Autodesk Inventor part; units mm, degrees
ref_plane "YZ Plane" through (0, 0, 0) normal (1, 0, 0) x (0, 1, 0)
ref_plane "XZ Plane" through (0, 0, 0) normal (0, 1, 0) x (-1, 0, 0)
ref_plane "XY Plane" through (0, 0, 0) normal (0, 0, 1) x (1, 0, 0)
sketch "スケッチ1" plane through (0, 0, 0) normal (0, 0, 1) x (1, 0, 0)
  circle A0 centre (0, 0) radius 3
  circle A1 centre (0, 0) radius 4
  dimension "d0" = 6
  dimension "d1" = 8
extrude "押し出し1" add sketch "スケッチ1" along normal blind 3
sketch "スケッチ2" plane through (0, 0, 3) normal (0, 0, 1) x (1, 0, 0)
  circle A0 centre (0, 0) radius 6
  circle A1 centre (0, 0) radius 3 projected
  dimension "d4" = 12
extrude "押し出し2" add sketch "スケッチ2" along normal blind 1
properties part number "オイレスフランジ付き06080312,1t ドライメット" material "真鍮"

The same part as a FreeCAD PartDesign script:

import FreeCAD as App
import Part
import Sketcher

V = App.Vector
Q = App.Units.Quantity

doc = App.newDocument("Part")
params = doc.addObject("Spreadsheet::Sheet", "Params")
for row, (alias, value) in enumerate([
    ("sketch1_diameter", "8 mm"),
    ("sketch1_diameter2", "6 mm"),
    ("pad1_length", "3 mm"),
    ("sketch2_diameter", "12 mm"),
    ("sketch2_diameter2", "6 mm"),
    ("pad2_length", "1 mm"),
], start=1):
    params.set(f"A{row}", alias)
    params.set(f"B{row}", "=" + value)
    params.setAlias(f"B{row}", alias)

body = doc.addObject("PartDesign::Body", "Body")

# Sketch on XY plane
sketch1 = body.newObject("Sketcher::SketchObject", "Sketch")
sketch1.AttachmentSupport = (doc.getObject("XY_Plane"), [""])
sketch1.MapMode = "FlatFace"
sketch1.addGeometry(Part.Circle(V(0, 0, 0), V(0, 0, 1), 4), False)
sketch1.addGeometry(Part.Circle(V(0, 0, 0), V(0, 0, 1), 3), False)
sketch1.addConstraint(Sketcher.Constraint("Coincident", 0, 3, -1, 1))
sketch1.addConstraint(Sketcher.Constraint("Coincident", 1, 3, -1, 1))
sketch1.addConstraint(Sketcher.Constraint("Diameter", 0, Q("8 mm")))
sketch1.addConstraint(Sketcher.Constraint("Diameter", 1, Q("6 mm")))
sketch1.setExpression("Constraints[2]", "Params.sketch1_diameter")
sketch1.setExpression("Constraints[3]", "Params.sketch1_diameter2")
pad1 = body.newObject("PartDesign::Pad", "Pad")
pad1.Profile = sketch1
pad1.setExpression("Length", "Params.pad1_length")

# Sketch on XY plane
sketch2 = body.newObject("Sketcher::SketchObject", "Sketch001")
sketch2.AttachmentSupport = (doc.getObject("XY_Plane"), [""])
sketch2.MapMode = "FlatFace"
sketch2.AttachmentOffset = App.Placement(V(0, 0, 3), App.Rotation())
sketch2.addGeometry(Part.Circle(V(0, 0, 0), V(0, 0, 1), 6), False)
sketch2.addGeometry(Part.Circle(V(0, 0, 0), V(0, 0, 1), 3), False)
sketch2.addConstraint(Sketcher.Constraint("Coincident", 0, 3, -1, 1))
sketch2.addConstraint(Sketcher.Constraint("Coincident", 1, 3, -1, 1))
sketch2.addConstraint(Sketcher.Constraint("Diameter", 0, Q("12 mm")))
sketch2.addConstraint(Sketcher.Constraint("Diameter", 1, Q("6 mm")))
sketch2.setExpression("Constraints[2]", "Params.sketch2_diameter")
sketch2.setExpression("Constraints[3]", "Params.sketch2_diameter2")
pad2 = body.newObject("PartDesign::Pad", "Pad001")
pad2.Profile = sketch2
pad2.setExpression("Length", "Params.pad2_length")

doc.recompute()
